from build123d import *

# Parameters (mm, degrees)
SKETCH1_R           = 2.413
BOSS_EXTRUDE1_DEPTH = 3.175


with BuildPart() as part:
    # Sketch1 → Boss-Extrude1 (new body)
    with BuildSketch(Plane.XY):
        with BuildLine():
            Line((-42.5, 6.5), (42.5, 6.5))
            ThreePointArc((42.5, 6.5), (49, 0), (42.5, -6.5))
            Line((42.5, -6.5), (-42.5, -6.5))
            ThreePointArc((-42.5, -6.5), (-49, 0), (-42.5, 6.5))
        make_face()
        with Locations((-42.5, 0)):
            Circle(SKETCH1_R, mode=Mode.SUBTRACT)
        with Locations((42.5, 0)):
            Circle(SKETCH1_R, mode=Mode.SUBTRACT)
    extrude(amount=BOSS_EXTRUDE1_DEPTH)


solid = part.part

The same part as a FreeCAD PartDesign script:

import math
import FreeCAD as App
import Part
import Sketcher

doc = App.newDocument("Part")
body = doc.addObject("PartDesign::Body", "Body")

# Sketch on XY plane
sketch1 = body.newObject("Sketcher::SketchObject", "Sketch")
sketch1.AttachmentSupport = (doc.getObject("XY_Plane"), [""])
sketch1.MapMode = "FlatFace"
sketch1.addGeometry([
    Part.LineSegment(App.Vector(42.5, 6.5, 0), App.Vector(-42.5, 6.5, 0)),  # 0
    Part.ArcOfCircle(Part.Circle(App.Vector(-42.5, 0, 0), App.Vector(0, 0, 1), 6.5), math.radians(90), math.radians(270)),  # 1
    Part.LineSegment(App.Vector(-42.5, -6.5, 0), App.Vector(42.5, -6.5, 0)),  # 2
    Part.ArcOfCircle(Part.Circle(App.Vector(42.5, 0, 0), App.Vector(0, 0, 1), 6.5), math.radians(-90), math.radians(90)),  # 3
    Part.Circle(App.Vector(42.5, 0, 0), App.Vector(0, 0, 1), 2.413),  # 4
    Part.Circle(App.Vector(-42.5, 0, 0), App.Vector(0, 0, 1), 2.413),  # 5
], False)
sketch1.addConstraint([
    Sketcher.Constraint("Tangent", 0, 2, 1, 1),
    Sketcher.Constraint("Tangent", 1, 2, 2, 1),
    Sketcher.Constraint("Tangent", 2, 2, 3, 1),
    Sketcher.Constraint("Tangent", 3, 2, 0, 1),
    Sketcher.Constraint("Horizontal", 0),
    Sketcher.Constraint("Horizontal", 2),
    Sketcher.Constraint("Coincident", 4, 3, 3, 3),
    Sketcher.Constraint("Coincident", 5, 3, 1, 3),
    Sketcher.Constraint("Equal", 4, 5),
    Sketcher.Constraint("Symmetric", 1, 3, 3, 3, -1, 1),
    Sketcher.Constraint("Radius", 1, 6.5),
    Sketcher.Constraint("DistanceX", 0, 2, 0, 1, 85.0),
    Sketcher.Constraint("Diameter", 4, 4.826),
])
pad1 = body.newObject("PartDesign::Pad", "Pad")
pad1.Profile = sketch1
pad1.Length = 3.175

doc.recompute()
